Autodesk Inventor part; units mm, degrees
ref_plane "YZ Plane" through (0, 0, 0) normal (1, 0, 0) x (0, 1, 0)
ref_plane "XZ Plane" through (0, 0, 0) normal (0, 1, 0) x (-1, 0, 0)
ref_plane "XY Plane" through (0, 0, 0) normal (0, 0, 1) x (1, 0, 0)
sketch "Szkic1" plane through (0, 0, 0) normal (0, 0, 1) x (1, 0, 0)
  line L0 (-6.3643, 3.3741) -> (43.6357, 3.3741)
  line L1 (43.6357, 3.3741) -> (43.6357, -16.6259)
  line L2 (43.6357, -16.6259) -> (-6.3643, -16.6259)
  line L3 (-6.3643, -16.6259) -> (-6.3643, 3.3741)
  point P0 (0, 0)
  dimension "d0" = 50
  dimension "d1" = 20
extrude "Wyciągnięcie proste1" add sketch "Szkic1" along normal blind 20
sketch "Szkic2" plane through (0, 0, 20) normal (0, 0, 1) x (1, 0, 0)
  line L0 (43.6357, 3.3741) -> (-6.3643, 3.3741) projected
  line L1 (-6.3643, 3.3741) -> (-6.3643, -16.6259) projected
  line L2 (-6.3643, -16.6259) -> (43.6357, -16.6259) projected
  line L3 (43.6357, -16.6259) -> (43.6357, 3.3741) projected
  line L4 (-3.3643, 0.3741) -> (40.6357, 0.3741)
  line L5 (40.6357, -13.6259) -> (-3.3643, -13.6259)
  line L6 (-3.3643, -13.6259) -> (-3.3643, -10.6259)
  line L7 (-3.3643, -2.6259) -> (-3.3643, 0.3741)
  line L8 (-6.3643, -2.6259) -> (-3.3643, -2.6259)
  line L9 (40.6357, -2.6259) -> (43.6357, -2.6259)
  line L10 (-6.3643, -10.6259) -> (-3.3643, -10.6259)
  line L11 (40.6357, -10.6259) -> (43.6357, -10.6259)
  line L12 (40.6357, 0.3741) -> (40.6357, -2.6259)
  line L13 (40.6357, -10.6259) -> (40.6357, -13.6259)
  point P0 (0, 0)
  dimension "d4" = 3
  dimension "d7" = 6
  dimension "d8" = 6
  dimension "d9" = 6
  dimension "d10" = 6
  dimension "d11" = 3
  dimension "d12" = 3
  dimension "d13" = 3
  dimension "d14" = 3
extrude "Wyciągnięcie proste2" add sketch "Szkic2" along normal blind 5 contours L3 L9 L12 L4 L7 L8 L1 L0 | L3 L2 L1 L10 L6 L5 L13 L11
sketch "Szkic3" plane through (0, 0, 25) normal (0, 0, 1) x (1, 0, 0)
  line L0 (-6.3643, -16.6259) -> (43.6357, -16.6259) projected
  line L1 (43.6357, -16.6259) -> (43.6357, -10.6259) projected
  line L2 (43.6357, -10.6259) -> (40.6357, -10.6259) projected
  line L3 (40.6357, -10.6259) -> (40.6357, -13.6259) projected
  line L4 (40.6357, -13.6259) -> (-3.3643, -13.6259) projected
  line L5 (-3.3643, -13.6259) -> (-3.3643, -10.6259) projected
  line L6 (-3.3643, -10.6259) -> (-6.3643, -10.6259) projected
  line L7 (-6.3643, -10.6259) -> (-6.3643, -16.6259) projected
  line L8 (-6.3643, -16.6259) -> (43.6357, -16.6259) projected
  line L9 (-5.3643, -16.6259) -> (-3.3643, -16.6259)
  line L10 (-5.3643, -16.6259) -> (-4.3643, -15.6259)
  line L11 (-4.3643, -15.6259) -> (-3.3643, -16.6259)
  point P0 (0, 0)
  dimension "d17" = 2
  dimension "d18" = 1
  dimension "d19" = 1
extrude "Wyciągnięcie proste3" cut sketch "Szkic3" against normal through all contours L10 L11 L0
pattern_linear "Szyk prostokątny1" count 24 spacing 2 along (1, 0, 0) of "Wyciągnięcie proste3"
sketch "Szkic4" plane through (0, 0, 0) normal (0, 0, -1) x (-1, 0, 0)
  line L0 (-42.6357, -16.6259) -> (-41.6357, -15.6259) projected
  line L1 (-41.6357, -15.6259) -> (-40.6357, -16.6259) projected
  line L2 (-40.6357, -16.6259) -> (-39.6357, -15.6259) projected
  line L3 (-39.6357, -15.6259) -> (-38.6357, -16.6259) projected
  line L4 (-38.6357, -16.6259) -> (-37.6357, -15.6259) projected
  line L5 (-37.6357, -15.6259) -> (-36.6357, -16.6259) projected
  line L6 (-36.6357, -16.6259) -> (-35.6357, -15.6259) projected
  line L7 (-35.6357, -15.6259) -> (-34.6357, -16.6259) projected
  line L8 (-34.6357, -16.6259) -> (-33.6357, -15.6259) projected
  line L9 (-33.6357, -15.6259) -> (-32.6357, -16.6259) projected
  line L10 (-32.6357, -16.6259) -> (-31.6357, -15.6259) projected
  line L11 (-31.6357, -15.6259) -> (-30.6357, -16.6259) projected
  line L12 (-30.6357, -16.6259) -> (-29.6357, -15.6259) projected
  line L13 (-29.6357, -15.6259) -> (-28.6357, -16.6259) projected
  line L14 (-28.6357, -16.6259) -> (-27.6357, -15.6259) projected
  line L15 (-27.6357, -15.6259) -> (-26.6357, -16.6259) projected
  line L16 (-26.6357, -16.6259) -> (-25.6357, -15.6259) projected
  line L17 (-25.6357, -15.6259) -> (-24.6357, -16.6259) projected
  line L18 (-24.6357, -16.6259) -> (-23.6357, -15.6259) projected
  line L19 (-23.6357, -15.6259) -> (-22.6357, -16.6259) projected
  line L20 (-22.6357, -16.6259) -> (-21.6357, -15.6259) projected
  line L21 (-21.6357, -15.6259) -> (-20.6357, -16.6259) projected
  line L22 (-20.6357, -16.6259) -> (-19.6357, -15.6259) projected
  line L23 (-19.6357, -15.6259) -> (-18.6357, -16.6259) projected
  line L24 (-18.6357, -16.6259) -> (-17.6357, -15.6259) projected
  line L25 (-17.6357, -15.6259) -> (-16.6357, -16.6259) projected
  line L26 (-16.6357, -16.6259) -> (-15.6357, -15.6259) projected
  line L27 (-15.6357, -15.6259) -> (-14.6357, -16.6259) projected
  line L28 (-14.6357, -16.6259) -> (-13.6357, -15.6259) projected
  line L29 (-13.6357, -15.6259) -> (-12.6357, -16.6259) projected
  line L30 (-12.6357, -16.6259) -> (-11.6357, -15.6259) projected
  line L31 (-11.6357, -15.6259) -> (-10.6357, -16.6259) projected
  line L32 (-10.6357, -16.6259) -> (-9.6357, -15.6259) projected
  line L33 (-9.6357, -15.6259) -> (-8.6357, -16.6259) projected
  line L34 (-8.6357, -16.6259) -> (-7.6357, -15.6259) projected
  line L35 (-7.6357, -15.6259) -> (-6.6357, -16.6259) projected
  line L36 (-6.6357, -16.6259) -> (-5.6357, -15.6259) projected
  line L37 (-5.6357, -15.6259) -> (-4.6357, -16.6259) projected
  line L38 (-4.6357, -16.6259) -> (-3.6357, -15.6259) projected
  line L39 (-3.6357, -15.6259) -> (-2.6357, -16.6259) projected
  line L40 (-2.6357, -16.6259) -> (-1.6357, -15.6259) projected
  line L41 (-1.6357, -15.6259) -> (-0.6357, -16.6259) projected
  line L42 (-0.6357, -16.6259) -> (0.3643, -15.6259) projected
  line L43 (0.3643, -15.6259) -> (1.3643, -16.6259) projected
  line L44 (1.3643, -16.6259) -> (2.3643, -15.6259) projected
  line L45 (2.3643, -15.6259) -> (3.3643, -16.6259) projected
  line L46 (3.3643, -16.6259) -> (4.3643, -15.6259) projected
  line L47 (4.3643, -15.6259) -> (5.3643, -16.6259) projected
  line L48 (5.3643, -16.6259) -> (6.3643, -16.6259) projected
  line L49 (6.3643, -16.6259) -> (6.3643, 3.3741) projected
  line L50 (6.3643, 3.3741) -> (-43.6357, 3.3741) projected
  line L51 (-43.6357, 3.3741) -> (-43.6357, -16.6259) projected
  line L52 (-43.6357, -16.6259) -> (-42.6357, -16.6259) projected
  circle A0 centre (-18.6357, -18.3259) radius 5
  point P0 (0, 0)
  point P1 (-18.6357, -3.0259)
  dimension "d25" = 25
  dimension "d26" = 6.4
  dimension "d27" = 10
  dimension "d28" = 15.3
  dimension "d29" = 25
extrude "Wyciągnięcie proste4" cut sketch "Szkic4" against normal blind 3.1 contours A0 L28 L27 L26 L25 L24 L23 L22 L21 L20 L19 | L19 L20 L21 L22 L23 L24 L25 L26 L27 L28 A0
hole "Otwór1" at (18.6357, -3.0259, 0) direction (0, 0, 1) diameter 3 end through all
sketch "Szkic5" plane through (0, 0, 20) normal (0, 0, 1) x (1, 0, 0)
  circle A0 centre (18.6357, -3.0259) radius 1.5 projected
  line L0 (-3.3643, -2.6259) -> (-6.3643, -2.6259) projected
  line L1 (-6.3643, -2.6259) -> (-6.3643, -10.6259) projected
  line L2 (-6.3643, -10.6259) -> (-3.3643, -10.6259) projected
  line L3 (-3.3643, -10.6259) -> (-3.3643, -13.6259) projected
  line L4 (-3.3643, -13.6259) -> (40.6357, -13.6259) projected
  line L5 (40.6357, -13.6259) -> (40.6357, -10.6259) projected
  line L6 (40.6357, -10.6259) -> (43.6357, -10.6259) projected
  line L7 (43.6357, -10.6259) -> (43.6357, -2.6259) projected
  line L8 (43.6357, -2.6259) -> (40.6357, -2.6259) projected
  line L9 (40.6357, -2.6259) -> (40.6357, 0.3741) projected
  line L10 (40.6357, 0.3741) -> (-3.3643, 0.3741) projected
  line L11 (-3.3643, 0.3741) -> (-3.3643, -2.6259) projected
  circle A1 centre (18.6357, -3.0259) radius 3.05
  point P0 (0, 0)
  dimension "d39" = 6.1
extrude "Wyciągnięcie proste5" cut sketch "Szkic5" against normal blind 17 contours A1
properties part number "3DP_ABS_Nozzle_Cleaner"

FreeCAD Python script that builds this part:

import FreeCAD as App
import Part
import Sketcher
from FreeCAD import Vector


def add_polygon(sketch, points):
    """Adds a closed chain of lines whose ends are joined by coincident constraints."""
    first, n = sketch.GeometryCount, len(points)
    for a, b in zip(points, points[1:] + points[:1]):
        sketch.addGeometry(Part.LineSegment(App.Vector(*a, 0), App.Vector(*b, 0)), False)
    for i in range(n):
        sketch.addConstraint(Sketcher.Constraint("Coincident", first + i, 2, first + (i + 1) % n, 1))

doc = App.newDocument("Part")
body = doc.addObject("PartDesign::Body", "Body")

# Sketch on XY plane
sketch1 = doc.addObject("Sketcher::SketchObject", "Sketch")
body.addObject(sketch1)
sketch1.AttachmentSupport = (doc.XY_Plane, [""])
sketch1.MapMode = "FlatFace"
add_polygon(sketch1, [(44, 3), (-6, 3), (-6, -17), (44, -17)])  # lines 0-3
sketch1.addConstraint(Sketcher.Constraint("Horizontal", 0))
sketch1.addConstraint(Sketcher.Constraint("Vertical", 1))
sketch1.addConstraint(Sketcher.Constraint("Horizontal", 2))
sketch1.addConstraint(Sketcher.Constraint("Vertical", 3))
sketch1.addConstraint(Sketcher.Constraint("DistanceX", 0, 2, 0, 1, 50.0))
sketch1.addConstraint(Sketcher.Constraint("DistanceY", 1, 2, 1, 1, 20.0))
sketch1.addConstraint(Sketcher.Constraint("DistanceY", -1, 1, 0, 2, 3.374))
sketch1.addConstraint(Sketcher.Constraint("DistanceX", 0, 2, -1, 1, 6.3643))
pad1 = doc.addObject("PartDesign::Pad", "Pad")
body.addObject(pad1)
pad1.Profile = sketch1
pad1.Length = 20

# Sketch on XY plane
sketch2 = doc.addObject("Sketcher::SketchObject", "Sketch001")
body.addObject(sketch2)
sketch2.AttachmentSupport = (doc.XY_Plane, [""])
sketch2.MapMode = "FlatFace"
sketch2.AttachmentOffset = App.Placement(Vector(0, 0, 20), App.Rotation())
add_polygon(sketch2, [(43.6, -2.6), (43.6, 3.4), (-6.4, 3.4), (-6.4, -2.6), (-3.4, -2.6), (-3.4, 0.4), (40.6, 0.4), (40.6, -2.6)])  # lines 0-7
add_polygon(sketch2, [(43.6, -16.6), (43.6, -10.6), (40.6, -10.6), (40.6, -13.6), (-3.4, -13.6), (-3.4, -10.6), (-6.4, -10.6), (-6.4, -16.6)])  # lines 8-15
sketch2.addConstraint(Sketcher.Constraint("Vertical", 0))
sketch2.addConstraint(Sketcher.Constraint("Horizontal", 1))
sketch2.addConstraint(Sketcher.Constraint("Vertical", 2))
sketch2.addConstraint(Sketcher.Constraint("Horizontal", 3))
sketch2.addConstraint(Sketcher.Constraint("Vertical", 4))
sketch2.addConstraint(Sketcher.Constraint("Horizontal", 5))
sketch2.addConstraint(Sketcher.Constraint("Vertical", 6))
sketch2.addConstraint(Sketcher.Constraint("Horizontal", 7))
sketch2.addConstraint(Sketcher.Constraint("Vertical", 8))
sketch2.addConstraint(Sketcher.Constraint("Horizontal", 9))
sketch2.addConstraint(Sketcher.Constraint("Vertical", 10))
sketch2.addConstraint(Sketcher.Constraint("Horizontal", 11))
sketch2.addConstraint(Sketcher.Constraint("Vertical", 12))
sketch2.addConstraint(Sketcher.Constraint("Horizontal", 13))
sketch2.addConstraint(Sketcher.Constraint("Vertical", 14))
sketch2.addConstraint(Sketcher.Constraint("Horizontal", 15))
sketch2.addConstraint(Sketcher.Constraint("Horizontal", 3, 2, 6, 2))
sketch2.addConstraint(Sketcher.Constraint("Horizontal", 9, 2, 12, 2))
sketch2.addConstraint(Sketcher.Constraint("Vertical", 7, 2, 8, 2))
sketch2.addConstraint(Sketcher.Constraint("Vertical", 6, 2, 9, 2))
sketch2.addConstraint(Sketcher.Constraint("Vertical", 4, 2, 11, 2))
sketch2.addConstraint(Sketcher.Constraint("Vertical", 2, 2, 13, 2))
sketch2.addConstraint(Sketcher.Constraint("Equal", 3, 7))
sketch2.addConstraint(Sketcher.Constraint("Equal", 13, 4))
sketch2.addConstraint(Sketcher.Constraint("Equal", 2, 8))
sketch2.addConstraint(Sketcher.Constraint("Equal", 6, 10))
sketch2.addConstraint(Sketcher.Constraint("DistanceX", 3, 1, 3, 2, 3.0))
sketch2.addConstraint(Sketcher.Constraint("DistanceY", 0, 1, 0, 2, 6.0))
sketch2.addConstraint(Sketcher.Constraint("DistanceX", 1, 2, 1, 1, 50.0))
sketch2.addConstraint(Sketcher.Constraint("DistanceY", 8, 2, 7, 2, 8.0))
sketch2.addConstraint(Sketcher.Constraint("DistanceY", -1, 1, 0, 2, 3.374))
sketch2.addConstraint(Sketcher.Constraint("DistanceX", -1, 1, 0, 2, 43.6357))
pad2 = doc.addObject("PartDesign::Pad", "Pad001")
body.addObject(pad2)
pad2.Profile = sketch2
pad2.Length = 5

# Sketch on XY plane
sketch3 = doc.addObject("Sketcher::SketchObject", "Sketch002")
body.addObject(sketch3)
sketch3.AttachmentSupport = (doc.XY_Plane, [""])
sketch3.MapMode = "FlatFace"
sketch3.AttachmentOffset = App.Placement(Vector(0, 0, 25), App.Rotation())
add_polygon(sketch3, [(-4.4, -15.6), (-5.4, -16.6), (-3.4, -16.6)])  # lines 0-2
sketch3.addConstraint(Sketcher.Constraint("Horizontal", 1))
sketch3.addConstraint(Sketcher.Constraint("Perpendicular", 0, 2))
sketch3.addConstraint(Sketcher.Constraint("Equal", 0, 2))
sketch3.addConstraint(Sketcher.Constraint("DistanceX", 1, 1, 1, 2, 2.0))
sketch3.addConstraint(Sketcher.Constraint("DistanceY", 0, 2, -1, 1, 16.626))
sketch3.addConstraint(Sketcher.Constraint("DistanceX", 0, 2, -1, 1, 5.3643))
pocket1 = doc.addObject("PartDesign::Pocket", "Pocket")
body.addObject(pocket1)
pocket1.Profile = sketch3
pocket1.Type = "ThroughAll"
doc.recompute()

linearpattern = doc.addObject("PartDesign::LinearPattern", "LinearPattern")
body.addObject(linearpattern)
linearpattern.Originals = [pocket1]
linearpattern.Direction = (doc.X_Axis, [""])
linearpattern.Mode = "offset"
linearpattern.Offset = 2
linearpattern.Occurrences = 24
body.Tip = linearpattern

# Sketch on XY plane
sketch4 = doc.addObject("Sketcher::SketchObject", "Sketch003")
body.addObject(sketch4)
sketch4.AttachmentSupport = (doc.XY_Plane, [""])
sketch4.MapMode = "FlatFace"
sketch4.addGeometry(Part.Circle(Vector(19, -18, 0), Vector(0, 0, 1), 5), False)
sketch4.addConstraint(Sketcher.Constraint("Diameter", 0, 10.0))
sketch4.addConstraint(Sketcher.Constraint("DistanceY", 0, 3, -1, 1, 18.326))
sketch4.addConstraint(Sketcher.Constraint("DistanceX", -1, 1, 0, 3, 18.6357))
pocket2 = doc.addObject("PartDesign::Pocket", "Pocket001")
body.addObject(pocket2)
pocket2.Profile = sketch4
pocket2.Length = 3.1
pocket2.Reversed = True

# Sketch on XY plane
sketch5 = doc.addObject("Sketcher::SketchObject", "Sketch004")
body.addObject(sketch5)
sketch5.AttachmentSupport = (doc.XY_Plane, [""])
sketch5.MapMode = "FlatFace"
sketch5.addGeometry(Part.Circle(Vector(18.6, -3, 0), Vector(0, 0, 1), 1.5), False)
sketch5.addConstraint(Sketcher.Constraint("Diameter", 0, 3.0))
sketch5.addConstraint(Sketcher.Constraint("DistanceY", 0, 3, -1, 1, 3.026))
sketch5.addConstraint(Sketcher.Constraint("DistanceX", -1, 1, 0, 3, 18.6357))
doc.recompute()
hole = doc.addObject("PartDesign::Hole", "Hole")
body.addObject(hole)
hole.Profile = sketch5
hole.ThreadType = "None"
hole.Diameter = 3
hole.DepthType = "ThroughAll"
hole.Reversed = True

# Sketch on XY plane
sketch6 = doc.addObject("Sketcher::SketchObject", "Sketch005")
body.addObject(sketch6)
sketch6.AttachmentSupport = (doc.XY_Plane, [""])
sketch6.MapMode = "FlatFace"
sketch6.AttachmentOffset = App.Placement(Vector(0, 0, 20), App.Rotation())
sketch6.addGeometry(Part.Circle(Vector(18.6, -3, 0), Vector(0, 0, 1), 3), False)
sketch6.addGeometry(Part.Circle(Vector(18.6, -3, 0), Vector(0, 0, 1), 1.5), False)
sketch6.addConstraint(Sketcher.Constraint("Coincident", 1, 3, 0, 3))
sketch6.addConstraint(Sketcher.Constraint("Diameter", 0, 6.1))
sketch6.addConstraint(Sketcher.Constraint("Diameter", 1, 3.0))
sketch6.addConstraint(Sketcher.Constraint("DistanceY", 0, 3, -1, 1, 3.026))
sketch6.addConstraint(Sketcher.Constraint("DistanceX", -1, 1, 0, 3, 18.6357))
pocket3 = doc.addObject("PartDesign::Pocket", "Pocket002")
body.addObject(pocket3)
pocket3.Profile = sketch6
pocket3.Length = 17

doc.recompute()
